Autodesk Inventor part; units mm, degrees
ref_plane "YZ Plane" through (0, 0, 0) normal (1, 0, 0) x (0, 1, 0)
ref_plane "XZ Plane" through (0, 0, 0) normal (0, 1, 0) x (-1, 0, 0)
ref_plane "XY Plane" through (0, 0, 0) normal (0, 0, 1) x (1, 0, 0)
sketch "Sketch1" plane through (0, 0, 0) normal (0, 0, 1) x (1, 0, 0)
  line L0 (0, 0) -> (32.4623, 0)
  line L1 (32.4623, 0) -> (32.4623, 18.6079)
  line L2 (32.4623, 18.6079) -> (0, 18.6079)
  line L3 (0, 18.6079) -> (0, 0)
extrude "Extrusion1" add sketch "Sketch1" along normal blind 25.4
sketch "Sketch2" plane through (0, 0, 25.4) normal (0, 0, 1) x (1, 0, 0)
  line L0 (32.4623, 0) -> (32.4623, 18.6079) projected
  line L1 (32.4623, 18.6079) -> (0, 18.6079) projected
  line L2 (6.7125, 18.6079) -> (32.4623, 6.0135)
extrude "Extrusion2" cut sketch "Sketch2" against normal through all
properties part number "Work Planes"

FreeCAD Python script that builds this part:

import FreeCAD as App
import Part
import Sketcher
from FreeCAD import Vector
Q = App.Units.Quantity


def add_polygon(sketch, points):
    """Adds a closed chain of lines whose ends are joined by coincident constraints."""
    first, n = sketch.GeometryCount, len(points)
    for a, b in zip(points, points[1:] + points[:1]):
        sketch.addGeometry(Part.LineSegment(App.Vector(*a, 0), App.Vector(*b, 0)), False)
    for i in range(n):
        sketch.addConstraint(Sketcher.Constraint("Coincident", first + i, 2, first + (i + 1) % n, 1))

doc = App.newDocument("Part")
params = doc.addObject("Spreadsheet::Sheet", "Params")
for row, (alias, value) in enumerate([
    ("pad1_length", "25.4 mm"),
], start=1):
    params.set(f"A{row}", alias)
    params.set(f"B{row}", "=" + value)
    params.setAlias(f"B{row}", alias)

body = doc.addObject("PartDesign::Body", "Body")

# Sketch on XY plane
sketch1 = doc.addObject("Sketcher::SketchObject", "Sketch")
body.addObject(sketch1)
sketch1.AttachmentSupport = (doc.XY_Plane, [""])
sketch1.MapMode = "FlatFace"
add_polygon(sketch1, [(0, 19), (0, 0), (32, 0), (32, 19)])  # lines 0-3
sketch1.addConstraint([
    Sketcher.Constraint("Vertical", 0),
    Sketcher.Constraint("Horizontal", 1),
    Sketcher.Constraint("Vertical", 2),
    Sketcher.Constraint("Horizontal", 3),
    Sketcher.Constraint("Coincident", 0, 2, -1, 1),
    Sketcher.Constraint("DistanceY", 0, 2, 0, 1, Q("18.608 mm")),
    Sketcher.Constraint("DistanceX", 1, 1, 1, 2, Q("32.4623 mm")),
])
pad1 = doc.addObject("PartDesign::Pad", "Pad")
body.addObject(pad1)
pad1.Profile = sketch1
pad1.setExpression("Length", "Params.pad1_length")

# Sketch on XY plane
sketch2 = doc.addObject("Sketcher::SketchObject", "Sketch001")
body.addObject(sketch2)
sketch2.AttachmentSupport = (doc.XY_Plane, [""])
sketch2.MapMode = "FlatFace"
sketch2.AttachmentOffset = App.Placement(Vector(0, 0, 25.4), App.Rotation())
add_polygon(sketch2, [(7, 19), (32, 6), (32, 19)])  # lines 0-2
sketch2.addConstraint([
    Sketcher.Constraint("Vertical", 1),
    Sketcher.Constraint("Horizontal", 2),
    Sketcher.Constraint("DistanceX", 2, 2, 2, 1, Q("25.7498 mm")),
    Sketcher.Constraint("DistanceY", 1, 1, 1, 2, Q("12.5944 mm")),
    Sketcher.Constraint("DistanceY", -1, 1, 1, 2, Q("18.608 mm")),
    Sketcher.Constraint("DistanceX", -1, 1, 0, 2, Q("32.4623 mm")),
])
pocket1 = doc.addObject("PartDesign::Pocket", "Pocket")
body.addObject(pocket1)
pocket1.Profile = sketch2
pocket1.Type = "ThroughAll"

doc.recompute()
